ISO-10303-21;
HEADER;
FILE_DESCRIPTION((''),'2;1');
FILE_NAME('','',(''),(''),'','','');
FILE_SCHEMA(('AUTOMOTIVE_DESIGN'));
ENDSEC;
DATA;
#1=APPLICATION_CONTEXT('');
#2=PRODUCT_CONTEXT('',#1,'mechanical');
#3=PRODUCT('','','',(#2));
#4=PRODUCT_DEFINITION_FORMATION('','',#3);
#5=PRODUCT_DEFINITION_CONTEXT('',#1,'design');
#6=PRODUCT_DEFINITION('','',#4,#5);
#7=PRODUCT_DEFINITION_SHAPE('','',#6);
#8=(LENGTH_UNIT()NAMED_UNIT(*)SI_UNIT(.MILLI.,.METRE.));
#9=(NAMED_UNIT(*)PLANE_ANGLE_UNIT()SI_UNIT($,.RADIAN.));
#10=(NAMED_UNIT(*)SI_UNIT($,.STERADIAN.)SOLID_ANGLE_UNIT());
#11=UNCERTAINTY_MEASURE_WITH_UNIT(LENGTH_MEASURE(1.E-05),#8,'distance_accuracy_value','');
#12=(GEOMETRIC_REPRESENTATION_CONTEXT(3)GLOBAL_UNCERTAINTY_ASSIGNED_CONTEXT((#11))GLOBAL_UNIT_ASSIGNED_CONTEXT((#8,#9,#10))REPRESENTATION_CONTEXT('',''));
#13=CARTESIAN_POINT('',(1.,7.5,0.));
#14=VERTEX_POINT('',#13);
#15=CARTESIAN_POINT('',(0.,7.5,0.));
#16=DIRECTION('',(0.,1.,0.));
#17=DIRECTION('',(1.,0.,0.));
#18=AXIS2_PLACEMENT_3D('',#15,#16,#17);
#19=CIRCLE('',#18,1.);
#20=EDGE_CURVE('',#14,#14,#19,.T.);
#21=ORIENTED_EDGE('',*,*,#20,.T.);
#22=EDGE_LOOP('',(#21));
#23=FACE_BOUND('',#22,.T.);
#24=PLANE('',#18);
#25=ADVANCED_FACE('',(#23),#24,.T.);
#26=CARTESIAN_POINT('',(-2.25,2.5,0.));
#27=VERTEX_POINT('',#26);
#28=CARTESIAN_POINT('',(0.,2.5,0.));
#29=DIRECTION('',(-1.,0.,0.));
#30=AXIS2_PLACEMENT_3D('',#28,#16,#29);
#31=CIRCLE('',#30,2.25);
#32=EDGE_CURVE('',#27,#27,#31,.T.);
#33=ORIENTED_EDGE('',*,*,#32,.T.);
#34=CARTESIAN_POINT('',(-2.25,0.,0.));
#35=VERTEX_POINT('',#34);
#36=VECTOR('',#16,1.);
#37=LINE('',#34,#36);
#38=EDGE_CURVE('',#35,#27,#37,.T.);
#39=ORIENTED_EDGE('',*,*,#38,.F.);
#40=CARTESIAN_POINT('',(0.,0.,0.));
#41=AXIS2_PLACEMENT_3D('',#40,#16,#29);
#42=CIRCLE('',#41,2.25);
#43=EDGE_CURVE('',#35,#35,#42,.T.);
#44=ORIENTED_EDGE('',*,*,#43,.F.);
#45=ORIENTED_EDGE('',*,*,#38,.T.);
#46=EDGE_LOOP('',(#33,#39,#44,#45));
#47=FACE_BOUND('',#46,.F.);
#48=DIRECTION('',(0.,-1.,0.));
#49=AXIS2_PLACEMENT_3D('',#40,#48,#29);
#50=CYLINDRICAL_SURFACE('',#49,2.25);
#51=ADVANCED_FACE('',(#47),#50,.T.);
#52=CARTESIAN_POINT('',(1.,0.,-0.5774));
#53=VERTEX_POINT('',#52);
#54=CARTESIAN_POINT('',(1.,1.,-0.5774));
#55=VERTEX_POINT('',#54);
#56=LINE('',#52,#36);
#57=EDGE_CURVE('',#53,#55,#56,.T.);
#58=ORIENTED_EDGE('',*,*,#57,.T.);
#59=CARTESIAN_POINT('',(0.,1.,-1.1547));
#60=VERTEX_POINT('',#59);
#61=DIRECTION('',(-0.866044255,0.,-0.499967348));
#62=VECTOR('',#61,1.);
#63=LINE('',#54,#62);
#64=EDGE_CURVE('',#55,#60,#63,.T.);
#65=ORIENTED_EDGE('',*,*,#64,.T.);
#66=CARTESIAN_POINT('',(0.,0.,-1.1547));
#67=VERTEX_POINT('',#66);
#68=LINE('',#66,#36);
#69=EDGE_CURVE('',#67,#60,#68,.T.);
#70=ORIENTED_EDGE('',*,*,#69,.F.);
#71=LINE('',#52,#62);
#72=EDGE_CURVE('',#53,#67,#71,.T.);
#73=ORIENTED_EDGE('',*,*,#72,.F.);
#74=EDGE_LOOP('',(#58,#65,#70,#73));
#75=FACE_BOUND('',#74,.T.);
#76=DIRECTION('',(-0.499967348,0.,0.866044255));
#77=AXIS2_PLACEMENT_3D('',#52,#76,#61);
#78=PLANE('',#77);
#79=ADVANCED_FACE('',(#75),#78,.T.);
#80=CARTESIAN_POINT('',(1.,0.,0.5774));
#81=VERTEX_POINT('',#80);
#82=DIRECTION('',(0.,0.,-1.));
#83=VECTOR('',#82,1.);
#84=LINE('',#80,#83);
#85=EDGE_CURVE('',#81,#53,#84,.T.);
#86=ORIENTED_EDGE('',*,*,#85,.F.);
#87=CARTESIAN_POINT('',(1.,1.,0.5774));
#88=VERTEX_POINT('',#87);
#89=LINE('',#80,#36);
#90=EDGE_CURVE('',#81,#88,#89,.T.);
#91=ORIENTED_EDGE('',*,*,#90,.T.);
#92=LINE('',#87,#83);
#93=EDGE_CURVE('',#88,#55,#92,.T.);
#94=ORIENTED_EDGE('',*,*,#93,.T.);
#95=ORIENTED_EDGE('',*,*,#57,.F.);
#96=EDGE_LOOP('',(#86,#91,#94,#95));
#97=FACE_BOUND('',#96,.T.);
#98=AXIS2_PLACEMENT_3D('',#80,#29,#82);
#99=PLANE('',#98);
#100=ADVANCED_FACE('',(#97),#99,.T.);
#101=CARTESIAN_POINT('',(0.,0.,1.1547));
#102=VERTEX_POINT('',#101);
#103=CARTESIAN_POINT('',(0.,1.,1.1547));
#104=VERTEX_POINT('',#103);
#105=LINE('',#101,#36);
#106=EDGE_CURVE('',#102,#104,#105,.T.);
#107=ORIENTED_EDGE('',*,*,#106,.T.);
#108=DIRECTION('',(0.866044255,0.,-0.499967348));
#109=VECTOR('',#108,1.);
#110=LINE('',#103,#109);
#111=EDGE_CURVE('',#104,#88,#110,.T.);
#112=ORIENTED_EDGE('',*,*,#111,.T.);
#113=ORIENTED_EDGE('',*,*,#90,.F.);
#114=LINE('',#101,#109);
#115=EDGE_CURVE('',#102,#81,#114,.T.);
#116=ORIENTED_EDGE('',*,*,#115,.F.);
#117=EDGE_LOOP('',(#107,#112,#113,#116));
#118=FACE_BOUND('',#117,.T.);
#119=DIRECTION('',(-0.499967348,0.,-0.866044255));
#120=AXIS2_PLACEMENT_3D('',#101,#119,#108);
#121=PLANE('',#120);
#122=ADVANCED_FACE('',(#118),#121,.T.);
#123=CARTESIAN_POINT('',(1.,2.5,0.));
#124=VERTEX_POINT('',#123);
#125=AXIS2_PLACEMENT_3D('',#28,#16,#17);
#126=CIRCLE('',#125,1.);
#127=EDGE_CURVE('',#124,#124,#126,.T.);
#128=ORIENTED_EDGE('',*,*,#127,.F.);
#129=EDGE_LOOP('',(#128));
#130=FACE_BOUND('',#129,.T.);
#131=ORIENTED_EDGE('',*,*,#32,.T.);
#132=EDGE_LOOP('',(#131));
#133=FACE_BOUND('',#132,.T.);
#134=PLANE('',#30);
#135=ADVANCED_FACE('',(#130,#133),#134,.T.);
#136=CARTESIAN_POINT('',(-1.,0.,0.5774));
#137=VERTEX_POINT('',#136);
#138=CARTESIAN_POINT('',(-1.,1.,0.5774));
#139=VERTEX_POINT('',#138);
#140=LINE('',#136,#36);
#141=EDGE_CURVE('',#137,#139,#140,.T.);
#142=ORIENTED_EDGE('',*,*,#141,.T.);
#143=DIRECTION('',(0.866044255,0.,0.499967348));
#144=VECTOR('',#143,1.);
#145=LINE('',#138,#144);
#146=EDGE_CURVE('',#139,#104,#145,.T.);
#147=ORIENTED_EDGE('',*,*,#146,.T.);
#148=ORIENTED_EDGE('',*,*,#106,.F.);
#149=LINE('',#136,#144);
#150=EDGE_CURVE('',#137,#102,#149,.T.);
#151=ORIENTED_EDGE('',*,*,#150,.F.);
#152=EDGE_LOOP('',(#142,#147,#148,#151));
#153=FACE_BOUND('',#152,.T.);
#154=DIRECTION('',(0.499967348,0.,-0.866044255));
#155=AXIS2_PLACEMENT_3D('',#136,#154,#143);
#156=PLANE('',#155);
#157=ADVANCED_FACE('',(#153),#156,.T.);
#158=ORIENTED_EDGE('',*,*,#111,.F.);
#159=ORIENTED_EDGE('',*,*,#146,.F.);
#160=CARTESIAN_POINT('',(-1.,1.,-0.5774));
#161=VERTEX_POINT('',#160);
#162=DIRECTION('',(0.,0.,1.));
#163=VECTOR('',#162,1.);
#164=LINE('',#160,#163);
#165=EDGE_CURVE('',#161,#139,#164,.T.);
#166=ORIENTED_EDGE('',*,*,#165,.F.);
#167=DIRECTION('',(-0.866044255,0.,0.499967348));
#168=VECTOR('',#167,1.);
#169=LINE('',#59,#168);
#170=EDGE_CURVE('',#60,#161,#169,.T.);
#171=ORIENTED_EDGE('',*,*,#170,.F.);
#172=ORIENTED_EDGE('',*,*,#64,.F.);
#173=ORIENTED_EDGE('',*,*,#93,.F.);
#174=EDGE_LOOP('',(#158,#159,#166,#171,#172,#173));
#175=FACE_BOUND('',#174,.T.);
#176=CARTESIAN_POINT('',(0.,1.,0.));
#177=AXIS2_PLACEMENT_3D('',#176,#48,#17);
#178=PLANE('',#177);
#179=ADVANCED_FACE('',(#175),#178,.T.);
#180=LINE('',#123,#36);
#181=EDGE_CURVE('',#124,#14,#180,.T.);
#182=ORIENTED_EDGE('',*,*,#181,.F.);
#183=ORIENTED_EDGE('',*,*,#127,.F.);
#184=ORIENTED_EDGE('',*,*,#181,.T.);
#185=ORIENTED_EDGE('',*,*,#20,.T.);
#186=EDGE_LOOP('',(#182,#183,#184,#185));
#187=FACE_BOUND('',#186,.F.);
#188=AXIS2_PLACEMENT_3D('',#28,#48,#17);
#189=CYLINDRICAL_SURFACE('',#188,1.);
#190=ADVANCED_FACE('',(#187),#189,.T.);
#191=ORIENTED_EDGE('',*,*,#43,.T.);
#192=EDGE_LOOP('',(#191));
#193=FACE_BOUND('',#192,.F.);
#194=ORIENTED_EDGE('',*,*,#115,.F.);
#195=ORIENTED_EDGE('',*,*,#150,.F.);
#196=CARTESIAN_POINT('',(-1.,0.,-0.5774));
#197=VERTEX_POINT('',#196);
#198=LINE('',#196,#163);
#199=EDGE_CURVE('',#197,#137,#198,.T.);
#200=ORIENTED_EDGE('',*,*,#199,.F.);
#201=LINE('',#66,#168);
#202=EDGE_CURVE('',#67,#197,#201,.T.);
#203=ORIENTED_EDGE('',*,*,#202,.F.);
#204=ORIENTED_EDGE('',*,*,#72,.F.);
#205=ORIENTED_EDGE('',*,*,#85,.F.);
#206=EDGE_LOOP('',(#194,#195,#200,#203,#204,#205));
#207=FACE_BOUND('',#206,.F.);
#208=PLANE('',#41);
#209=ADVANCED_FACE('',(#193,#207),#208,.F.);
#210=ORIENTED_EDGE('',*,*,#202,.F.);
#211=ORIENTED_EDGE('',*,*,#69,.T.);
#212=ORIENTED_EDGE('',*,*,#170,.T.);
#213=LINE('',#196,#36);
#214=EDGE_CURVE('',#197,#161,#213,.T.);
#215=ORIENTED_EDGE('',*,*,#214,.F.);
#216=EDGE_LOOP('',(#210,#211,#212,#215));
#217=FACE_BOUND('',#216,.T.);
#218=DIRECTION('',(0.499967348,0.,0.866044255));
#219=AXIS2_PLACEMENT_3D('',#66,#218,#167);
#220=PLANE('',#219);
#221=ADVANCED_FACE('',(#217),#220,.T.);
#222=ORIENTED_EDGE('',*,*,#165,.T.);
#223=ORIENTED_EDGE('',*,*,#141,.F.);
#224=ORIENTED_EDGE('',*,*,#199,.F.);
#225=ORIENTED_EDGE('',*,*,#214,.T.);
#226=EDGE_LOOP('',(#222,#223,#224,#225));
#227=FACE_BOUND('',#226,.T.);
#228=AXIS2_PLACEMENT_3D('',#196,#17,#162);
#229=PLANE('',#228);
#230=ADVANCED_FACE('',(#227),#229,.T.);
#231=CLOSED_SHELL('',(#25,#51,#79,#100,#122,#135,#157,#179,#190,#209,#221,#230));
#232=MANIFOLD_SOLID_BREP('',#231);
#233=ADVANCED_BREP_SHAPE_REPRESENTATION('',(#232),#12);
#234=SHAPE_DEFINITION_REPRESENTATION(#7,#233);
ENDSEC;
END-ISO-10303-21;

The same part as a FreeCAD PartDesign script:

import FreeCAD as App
import Part
import Sketcher

V = App.Vector
Q = App.Units.Quantity

doc = App.newDocument("Part")
body = doc.addObject("PartDesign::Body", "Body")

# Sketch on XZ plane
sketch1 = body.newObject("Sketcher::SketchObject", "Sketch")
sketch1.AttachmentSupport = (doc.getObject("XZ_Plane"), [""])
sketch1.MapMode = "FlatFace"
sketch1.addGeometry(Part.Circle(V(0, 0, 0), V(0, 0, 1), 2.2), False)
sketch1.addConstraint([
    Sketcher.Constraint("Coincident", 0, 3, -1, 1),
    Sketcher.Constraint("Diameter", 0, Q("4.5 mm")),
])
pad1 = body.newObject("PartDesign::Pad", "Pad")
pad1.Profile = sketch1
pad1.Length = 2.5
pad1.Reversed = True

# Sketch on XZ plane
sketch2 = body.newObject("Sketcher::SketchObject", "Sketch001")
sketch2.AttachmentSupport = (doc.getObject("XZ_Plane"), [""])
sketch2.MapMode = "FlatFace"
sketch2.AttachmentOffset = App.Placement(V(0, 0, -2.5), App.Rotation())
sketch2.addGeometry(Part.Circle(V(0, 0, 0), V(0, 0, 1), 1), False)
sketch2.addConstraint([
    Sketcher.Constraint("Coincident", 0, 3, -1, 1),
    Sketcher.Constraint("Diameter", 0, Q("2 mm")),
])
pad2 = body.newObject("PartDesign::Pad", "Pad001")
pad2.Profile = sketch2
pad2.Length = 5
pad2.Reversed = True

# Sketch on XZ plane
sketch3 = body.newObject("Sketcher::SketchObject", "Sketch002")
sketch3.AttachmentSupport = (doc.getObject("XZ_Plane"), [""])
sketch3.MapMode = "FlatFace"
sketch3.addGeometry([
    Part.LineSegment(V(-1, -0.6, 0), V(0, -1.2, 0)),  # 0
    Part.LineSegment(V(0, -1.2, 0), V(1, -0.6, 0)),  # 1
    Part.LineSegment(V(1, -0.6, 0), V(1, 0.6, 0)),  # 2
    Part.LineSegment(V(1, 0.6, 0), V(0, 1.2, 0)),  # 3
    Part.LineSegment(V(0, 1.2, 0), V(-1, 0.6, 0)),  # 4
    Part.LineSegment(V(-1, 0.6, 0), V(-1, -0.6, 0)),  # 5
], False)
sketch3.addConstraint([
    Sketcher.Constraint("Coincident", 0, 2, 1, 1),
    Sketcher.Constraint("Coincident", 1, 2, 2, 1),
    Sketcher.Constraint("Coincident", 2, 2, 3, 1),
    Sketcher.Constraint("Coincident", 3, 2, 4, 1),
    Sketcher.Constraint("Coincident", 4, 2, 5, 1),
    Sketcher.Constraint("Coincident", 5, 2, 0, 1),
    Sketcher.Constraint("Vertical", 2),
    Sketcher.Constraint("Vertical", 5),
    Sketcher.Constraint("Symmetric", 0, 2, 3, 2, -1, 1),
    Sketcher.Constraint("Symmetric", 1, 2, 4, 2, -1, 1),
    Sketcher.Constraint("PointOnObject", 0, 2, -2),
    Sketcher.Constraint("Parallel", 0, 3),
    Sketcher.Constraint("Horizontal", 2, 2, 4, 2),
    Sketcher.Constraint("DistanceX", 4, 2, 2, 2, Q("2 mm")),
    Sketcher.Constraint("DistanceY", 2, 1, 2, 2, Q("1.1548 mm")),
    Sketcher.Constraint("DistanceY", 0, 2, 2, 2, Q("1.732 mm")),
])
pocket1 = body.newObject("PartDesign::Pocket", "Pocket")
pocket1.Profile = sketch3
pocket1.Length = 1

doc.recompute()
